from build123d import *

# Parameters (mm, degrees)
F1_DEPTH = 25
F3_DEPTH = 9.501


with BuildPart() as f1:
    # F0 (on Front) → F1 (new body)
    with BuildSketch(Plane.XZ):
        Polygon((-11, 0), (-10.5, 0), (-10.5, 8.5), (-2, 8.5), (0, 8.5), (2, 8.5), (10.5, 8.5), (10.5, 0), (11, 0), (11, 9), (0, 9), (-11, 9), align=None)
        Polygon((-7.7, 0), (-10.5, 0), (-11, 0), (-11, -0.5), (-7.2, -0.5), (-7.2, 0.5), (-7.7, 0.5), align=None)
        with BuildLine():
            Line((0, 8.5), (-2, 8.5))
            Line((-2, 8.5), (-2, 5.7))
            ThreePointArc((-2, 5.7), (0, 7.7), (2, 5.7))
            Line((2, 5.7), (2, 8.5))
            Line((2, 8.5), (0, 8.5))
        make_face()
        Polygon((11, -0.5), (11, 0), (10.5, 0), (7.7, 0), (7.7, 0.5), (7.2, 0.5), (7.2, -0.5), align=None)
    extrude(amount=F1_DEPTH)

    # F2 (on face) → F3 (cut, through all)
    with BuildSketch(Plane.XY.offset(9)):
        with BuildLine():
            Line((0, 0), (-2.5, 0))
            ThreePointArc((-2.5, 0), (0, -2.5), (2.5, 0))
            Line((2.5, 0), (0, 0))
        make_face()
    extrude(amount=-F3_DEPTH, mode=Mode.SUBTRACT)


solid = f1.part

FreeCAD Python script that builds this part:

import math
import FreeCAD as App
import Part
import Sketcher

V = App.Vector

doc = App.newDocument("Part")
body = doc.addObject("PartDesign::Body", "Body")

# Sketch on XZ plane
sketch1 = doc.addObject("Sketcher::SketchObject", "Sketch")
body.addObject(sketch1)
sketch1.AttachmentSupport = (doc.XZ_Plane, [""])
sketch1.MapMode = "FlatFace"
sketch1.addGeometry([
    Part.LineSegment(V(-10.5, 0, 0), V(-10.5, 8.5, 0)),  # 0
    Part.LineSegment(V(-10.5, 8.5, 0), V(-2, 8.5, 0)),  # 1
    Part.LineSegment(V(-2, 8.5, 0), V(-2, 5.7, 0)),  # 2
    Part.ArcOfCircle(Part.Circle(V(0, 5.7, 0), V(0, 0, 1), 2), math.radians(0), math.radians(180)),  # 3
    Part.LineSegment(V(2, 5.7, 0), V(2, 8.5, 0)),  # 4
    Part.LineSegment(V(2, 8.5, 0), V(10.5, 8.5, 0)),  # 5
    Part.LineSegment(V(10.5, 8.5, 0), V(10.5, 0, 0)),  # 6
    Part.LineSegment(V(10.5, 0, 0), V(7.7, 0, 0)),  # 7
    Part.LineSegment(V(7.7, 0, 0), V(7.7, 0.5, 0)),  # 8
    Part.LineSegment(V(7.7, 0.5, 0), V(7.2, 0.5, 0)),  # 9
    Part.LineSegment(V(7.2, 0.5, 0), V(7.2, -0.5, 0)),  # 10
    Part.LineSegment(V(7.2, -0.5, 0), V(11, -0.5, 0)),  # 11
    Part.LineSegment(V(11, -0.5, 0), V(11, 9, 0)),  # 12
    Part.LineSegment(V(11, 9, 0), V(-11, 9, 0)),  # 13
    Part.LineSegment(V(-11, 9, 0), V(-11, -0.5, 0)),  # 14
    Part.LineSegment(V(-11, -0.5, 0), V(-7.2, -0.5, 0)),  # 15
    Part.LineSegment(V(-7.2, -0.5, 0), V(-7.2, 0.5, 0)),  # 16
    Part.LineSegment(V(-7.2, 0.5, 0), V(-7.7, 0.5, 0)),  # 17
    Part.LineSegment(V(-7.7, 0.5, 0), V(-7.7, 0, 0)),  # 18
    Part.LineSegment(V(-7.7, 0, 0), V(-10.5, 0, 0)),  # 19
], False)
sketch1.addConstraint([
    Sketcher.Constraint("Coincident", 0, 2, 1, 1),
    Sketcher.Constraint("Coincident", 1, 2, 2, 1),
    Sketcher.Constraint("Tangent", 2, 2, 3, 2),
    Sketcher.Constraint("Tangent", 3, 1, 4, 1),
    Sketcher.Constraint("Coincident", 4, 2, 5, 1),
    Sketcher.Constraint("Coincident", 5, 2, 6, 1),
    Sketcher.Constraint("Coincident", 6, 2, 7, 1),
    Sketcher.Constraint("Coincident", 7, 2, 8, 1),
    Sketcher.Constraint("Coincident", 8, 2, 9, 1),
    Sketcher.Constraint("Coincident", 9, 2, 10, 1),
    Sketcher.Constraint("Coincident", 10, 2, 11, 1),
    Sketcher.Constraint("Coincident", 11, 2, 12, 1),
    Sketcher.Constraint("Coincident", 12, 2, 13, 1),
    Sketcher.Constraint("Coincident", 13, 2, 14, 1),
    Sketcher.Constraint("Coincident", 14, 2, 15, 1),
    Sketcher.Constraint("Coincident", 15, 2, 16, 1),
    Sketcher.Constraint("Coincident", 16, 2, 17, 1),
    Sketcher.Constraint("Coincident", 17, 2, 18, 1),
    Sketcher.Constraint("Coincident", 18, 2, 19, 1),
    Sketcher.Constraint("Coincident", 19, 2, 0, 1),
    Sketcher.Constraint("Vertical", 0),
    Sketcher.Constraint("Horizontal", 1),
    Sketcher.Constraint("Vertical", 2),
    Sketcher.Constraint("Vertical", 4),
    Sketcher.Constraint("Horizontal", 5),
    Sketcher.Constraint("Vertical", 6),
    Sketcher.Constraint("Horizontal", 7),
    Sketcher.Constraint("Vertical", 8),
    Sketcher.Constraint("Horizontal", 9),
    Sketcher.Constraint("Vertical", 10),
    Sketcher.Constraint("Horizontal", 11),
    Sketcher.Constraint("Vertical", 12),
    Sketcher.Constraint("Horizontal", 13),
    Sketcher.Constraint("Vertical", 14),
    Sketcher.Constraint("Horizontal", 15),
    Sketcher.Constraint("Vertical", 16),
    Sketcher.Constraint("Horizontal", 17),
    Sketcher.Constraint("Vertical", 18),
    Sketcher.Constraint("Horizontal", 19),
    Sketcher.Constraint("Symmetric", 9, 2, 15, 2, -1, 1),
    Sketcher.Constraint("Symmetric", 7, 2, 18, 2, -1, 1),
    Sketcher.Constraint("Symmetric", 1, 2, 4, 2, -2),
    Sketcher.Constraint("Symmetric", 11, 2, 14, 2, -2),
    Sketcher.Constraint("Symmetric", 6, 2, 19, 2, -2),
    Sketcher.Constraint("Horizontal", 9, 2, 16, 2),
    Sketcher.Constraint("Equal", 5, 0),
    Sketcher.Constraint("Equal", 19, 2),
    Sketcher.Constraint("Equal", 17, 8),
    Sketcher.Constraint("Radius", 3, 2.0),
    Sketcher.Constraint("DistanceX", 13, 2, 13, 1, 22.0),
    Sketcher.Constraint("DistanceY", 10, 2, 10, 1, 1.0),
    Sketcher.Constraint("DistanceX", 1, 1, 1, 2, 8.5),
    Sketcher.Constraint("DistanceX", 7, 2, 7, 1, 2.8),
    Sketcher.Constraint("DistanceY", 12, 1, 12, 2, 9.5),
])
pad1 = doc.addObject("PartDesign::Pad", "Pad")
body.addObject(pad1)
pad1.Profile = sketch1
pad1.Length = 25

# Sketch on XY plane
sketch2 = doc.addObject("Sketcher::SketchObject", "Sketch001")
body.addObject(sketch2)
sketch2.AttachmentSupport = (doc.XY_Plane, [""])
sketch2.MapMode = "FlatFace"
sketch2.AttachmentOffset = App.Placement(V(0, 0, 9), App.Rotation())
sketch2.addGeometry([
    Part.ArcOfCircle(Part.Circle(V(0, 0, 0), V(0, 0, 1), 2.5), math.radians(180), math.radians(360)),
    Part.LineSegment(V(2.5, 0, 0), V(-2.5, 0, 0)),
], False)
sketch2.addConstraint([
    Sketcher.Constraint("Coincident", 0, 1, 1, 2),
    Sketcher.Constraint("Coincident", 1, 1, 0, 2),
    Sketcher.Constraint("Horizontal", 1),
    Sketcher.Constraint("Coincident", 0, 3, -1, 1),
    Sketcher.Constraint("PointOnObject", 0, 1, -1),
    Sketcher.Constraint("Radius", 0, 2.5),
])
pocket1 = doc.addObject("PartDesign::Pocket", "Pocket")
body.addObject(pocket1)
pocket1.Profile = sketch2
pocket1.Type = "ThroughAll"

doc.recompute()
